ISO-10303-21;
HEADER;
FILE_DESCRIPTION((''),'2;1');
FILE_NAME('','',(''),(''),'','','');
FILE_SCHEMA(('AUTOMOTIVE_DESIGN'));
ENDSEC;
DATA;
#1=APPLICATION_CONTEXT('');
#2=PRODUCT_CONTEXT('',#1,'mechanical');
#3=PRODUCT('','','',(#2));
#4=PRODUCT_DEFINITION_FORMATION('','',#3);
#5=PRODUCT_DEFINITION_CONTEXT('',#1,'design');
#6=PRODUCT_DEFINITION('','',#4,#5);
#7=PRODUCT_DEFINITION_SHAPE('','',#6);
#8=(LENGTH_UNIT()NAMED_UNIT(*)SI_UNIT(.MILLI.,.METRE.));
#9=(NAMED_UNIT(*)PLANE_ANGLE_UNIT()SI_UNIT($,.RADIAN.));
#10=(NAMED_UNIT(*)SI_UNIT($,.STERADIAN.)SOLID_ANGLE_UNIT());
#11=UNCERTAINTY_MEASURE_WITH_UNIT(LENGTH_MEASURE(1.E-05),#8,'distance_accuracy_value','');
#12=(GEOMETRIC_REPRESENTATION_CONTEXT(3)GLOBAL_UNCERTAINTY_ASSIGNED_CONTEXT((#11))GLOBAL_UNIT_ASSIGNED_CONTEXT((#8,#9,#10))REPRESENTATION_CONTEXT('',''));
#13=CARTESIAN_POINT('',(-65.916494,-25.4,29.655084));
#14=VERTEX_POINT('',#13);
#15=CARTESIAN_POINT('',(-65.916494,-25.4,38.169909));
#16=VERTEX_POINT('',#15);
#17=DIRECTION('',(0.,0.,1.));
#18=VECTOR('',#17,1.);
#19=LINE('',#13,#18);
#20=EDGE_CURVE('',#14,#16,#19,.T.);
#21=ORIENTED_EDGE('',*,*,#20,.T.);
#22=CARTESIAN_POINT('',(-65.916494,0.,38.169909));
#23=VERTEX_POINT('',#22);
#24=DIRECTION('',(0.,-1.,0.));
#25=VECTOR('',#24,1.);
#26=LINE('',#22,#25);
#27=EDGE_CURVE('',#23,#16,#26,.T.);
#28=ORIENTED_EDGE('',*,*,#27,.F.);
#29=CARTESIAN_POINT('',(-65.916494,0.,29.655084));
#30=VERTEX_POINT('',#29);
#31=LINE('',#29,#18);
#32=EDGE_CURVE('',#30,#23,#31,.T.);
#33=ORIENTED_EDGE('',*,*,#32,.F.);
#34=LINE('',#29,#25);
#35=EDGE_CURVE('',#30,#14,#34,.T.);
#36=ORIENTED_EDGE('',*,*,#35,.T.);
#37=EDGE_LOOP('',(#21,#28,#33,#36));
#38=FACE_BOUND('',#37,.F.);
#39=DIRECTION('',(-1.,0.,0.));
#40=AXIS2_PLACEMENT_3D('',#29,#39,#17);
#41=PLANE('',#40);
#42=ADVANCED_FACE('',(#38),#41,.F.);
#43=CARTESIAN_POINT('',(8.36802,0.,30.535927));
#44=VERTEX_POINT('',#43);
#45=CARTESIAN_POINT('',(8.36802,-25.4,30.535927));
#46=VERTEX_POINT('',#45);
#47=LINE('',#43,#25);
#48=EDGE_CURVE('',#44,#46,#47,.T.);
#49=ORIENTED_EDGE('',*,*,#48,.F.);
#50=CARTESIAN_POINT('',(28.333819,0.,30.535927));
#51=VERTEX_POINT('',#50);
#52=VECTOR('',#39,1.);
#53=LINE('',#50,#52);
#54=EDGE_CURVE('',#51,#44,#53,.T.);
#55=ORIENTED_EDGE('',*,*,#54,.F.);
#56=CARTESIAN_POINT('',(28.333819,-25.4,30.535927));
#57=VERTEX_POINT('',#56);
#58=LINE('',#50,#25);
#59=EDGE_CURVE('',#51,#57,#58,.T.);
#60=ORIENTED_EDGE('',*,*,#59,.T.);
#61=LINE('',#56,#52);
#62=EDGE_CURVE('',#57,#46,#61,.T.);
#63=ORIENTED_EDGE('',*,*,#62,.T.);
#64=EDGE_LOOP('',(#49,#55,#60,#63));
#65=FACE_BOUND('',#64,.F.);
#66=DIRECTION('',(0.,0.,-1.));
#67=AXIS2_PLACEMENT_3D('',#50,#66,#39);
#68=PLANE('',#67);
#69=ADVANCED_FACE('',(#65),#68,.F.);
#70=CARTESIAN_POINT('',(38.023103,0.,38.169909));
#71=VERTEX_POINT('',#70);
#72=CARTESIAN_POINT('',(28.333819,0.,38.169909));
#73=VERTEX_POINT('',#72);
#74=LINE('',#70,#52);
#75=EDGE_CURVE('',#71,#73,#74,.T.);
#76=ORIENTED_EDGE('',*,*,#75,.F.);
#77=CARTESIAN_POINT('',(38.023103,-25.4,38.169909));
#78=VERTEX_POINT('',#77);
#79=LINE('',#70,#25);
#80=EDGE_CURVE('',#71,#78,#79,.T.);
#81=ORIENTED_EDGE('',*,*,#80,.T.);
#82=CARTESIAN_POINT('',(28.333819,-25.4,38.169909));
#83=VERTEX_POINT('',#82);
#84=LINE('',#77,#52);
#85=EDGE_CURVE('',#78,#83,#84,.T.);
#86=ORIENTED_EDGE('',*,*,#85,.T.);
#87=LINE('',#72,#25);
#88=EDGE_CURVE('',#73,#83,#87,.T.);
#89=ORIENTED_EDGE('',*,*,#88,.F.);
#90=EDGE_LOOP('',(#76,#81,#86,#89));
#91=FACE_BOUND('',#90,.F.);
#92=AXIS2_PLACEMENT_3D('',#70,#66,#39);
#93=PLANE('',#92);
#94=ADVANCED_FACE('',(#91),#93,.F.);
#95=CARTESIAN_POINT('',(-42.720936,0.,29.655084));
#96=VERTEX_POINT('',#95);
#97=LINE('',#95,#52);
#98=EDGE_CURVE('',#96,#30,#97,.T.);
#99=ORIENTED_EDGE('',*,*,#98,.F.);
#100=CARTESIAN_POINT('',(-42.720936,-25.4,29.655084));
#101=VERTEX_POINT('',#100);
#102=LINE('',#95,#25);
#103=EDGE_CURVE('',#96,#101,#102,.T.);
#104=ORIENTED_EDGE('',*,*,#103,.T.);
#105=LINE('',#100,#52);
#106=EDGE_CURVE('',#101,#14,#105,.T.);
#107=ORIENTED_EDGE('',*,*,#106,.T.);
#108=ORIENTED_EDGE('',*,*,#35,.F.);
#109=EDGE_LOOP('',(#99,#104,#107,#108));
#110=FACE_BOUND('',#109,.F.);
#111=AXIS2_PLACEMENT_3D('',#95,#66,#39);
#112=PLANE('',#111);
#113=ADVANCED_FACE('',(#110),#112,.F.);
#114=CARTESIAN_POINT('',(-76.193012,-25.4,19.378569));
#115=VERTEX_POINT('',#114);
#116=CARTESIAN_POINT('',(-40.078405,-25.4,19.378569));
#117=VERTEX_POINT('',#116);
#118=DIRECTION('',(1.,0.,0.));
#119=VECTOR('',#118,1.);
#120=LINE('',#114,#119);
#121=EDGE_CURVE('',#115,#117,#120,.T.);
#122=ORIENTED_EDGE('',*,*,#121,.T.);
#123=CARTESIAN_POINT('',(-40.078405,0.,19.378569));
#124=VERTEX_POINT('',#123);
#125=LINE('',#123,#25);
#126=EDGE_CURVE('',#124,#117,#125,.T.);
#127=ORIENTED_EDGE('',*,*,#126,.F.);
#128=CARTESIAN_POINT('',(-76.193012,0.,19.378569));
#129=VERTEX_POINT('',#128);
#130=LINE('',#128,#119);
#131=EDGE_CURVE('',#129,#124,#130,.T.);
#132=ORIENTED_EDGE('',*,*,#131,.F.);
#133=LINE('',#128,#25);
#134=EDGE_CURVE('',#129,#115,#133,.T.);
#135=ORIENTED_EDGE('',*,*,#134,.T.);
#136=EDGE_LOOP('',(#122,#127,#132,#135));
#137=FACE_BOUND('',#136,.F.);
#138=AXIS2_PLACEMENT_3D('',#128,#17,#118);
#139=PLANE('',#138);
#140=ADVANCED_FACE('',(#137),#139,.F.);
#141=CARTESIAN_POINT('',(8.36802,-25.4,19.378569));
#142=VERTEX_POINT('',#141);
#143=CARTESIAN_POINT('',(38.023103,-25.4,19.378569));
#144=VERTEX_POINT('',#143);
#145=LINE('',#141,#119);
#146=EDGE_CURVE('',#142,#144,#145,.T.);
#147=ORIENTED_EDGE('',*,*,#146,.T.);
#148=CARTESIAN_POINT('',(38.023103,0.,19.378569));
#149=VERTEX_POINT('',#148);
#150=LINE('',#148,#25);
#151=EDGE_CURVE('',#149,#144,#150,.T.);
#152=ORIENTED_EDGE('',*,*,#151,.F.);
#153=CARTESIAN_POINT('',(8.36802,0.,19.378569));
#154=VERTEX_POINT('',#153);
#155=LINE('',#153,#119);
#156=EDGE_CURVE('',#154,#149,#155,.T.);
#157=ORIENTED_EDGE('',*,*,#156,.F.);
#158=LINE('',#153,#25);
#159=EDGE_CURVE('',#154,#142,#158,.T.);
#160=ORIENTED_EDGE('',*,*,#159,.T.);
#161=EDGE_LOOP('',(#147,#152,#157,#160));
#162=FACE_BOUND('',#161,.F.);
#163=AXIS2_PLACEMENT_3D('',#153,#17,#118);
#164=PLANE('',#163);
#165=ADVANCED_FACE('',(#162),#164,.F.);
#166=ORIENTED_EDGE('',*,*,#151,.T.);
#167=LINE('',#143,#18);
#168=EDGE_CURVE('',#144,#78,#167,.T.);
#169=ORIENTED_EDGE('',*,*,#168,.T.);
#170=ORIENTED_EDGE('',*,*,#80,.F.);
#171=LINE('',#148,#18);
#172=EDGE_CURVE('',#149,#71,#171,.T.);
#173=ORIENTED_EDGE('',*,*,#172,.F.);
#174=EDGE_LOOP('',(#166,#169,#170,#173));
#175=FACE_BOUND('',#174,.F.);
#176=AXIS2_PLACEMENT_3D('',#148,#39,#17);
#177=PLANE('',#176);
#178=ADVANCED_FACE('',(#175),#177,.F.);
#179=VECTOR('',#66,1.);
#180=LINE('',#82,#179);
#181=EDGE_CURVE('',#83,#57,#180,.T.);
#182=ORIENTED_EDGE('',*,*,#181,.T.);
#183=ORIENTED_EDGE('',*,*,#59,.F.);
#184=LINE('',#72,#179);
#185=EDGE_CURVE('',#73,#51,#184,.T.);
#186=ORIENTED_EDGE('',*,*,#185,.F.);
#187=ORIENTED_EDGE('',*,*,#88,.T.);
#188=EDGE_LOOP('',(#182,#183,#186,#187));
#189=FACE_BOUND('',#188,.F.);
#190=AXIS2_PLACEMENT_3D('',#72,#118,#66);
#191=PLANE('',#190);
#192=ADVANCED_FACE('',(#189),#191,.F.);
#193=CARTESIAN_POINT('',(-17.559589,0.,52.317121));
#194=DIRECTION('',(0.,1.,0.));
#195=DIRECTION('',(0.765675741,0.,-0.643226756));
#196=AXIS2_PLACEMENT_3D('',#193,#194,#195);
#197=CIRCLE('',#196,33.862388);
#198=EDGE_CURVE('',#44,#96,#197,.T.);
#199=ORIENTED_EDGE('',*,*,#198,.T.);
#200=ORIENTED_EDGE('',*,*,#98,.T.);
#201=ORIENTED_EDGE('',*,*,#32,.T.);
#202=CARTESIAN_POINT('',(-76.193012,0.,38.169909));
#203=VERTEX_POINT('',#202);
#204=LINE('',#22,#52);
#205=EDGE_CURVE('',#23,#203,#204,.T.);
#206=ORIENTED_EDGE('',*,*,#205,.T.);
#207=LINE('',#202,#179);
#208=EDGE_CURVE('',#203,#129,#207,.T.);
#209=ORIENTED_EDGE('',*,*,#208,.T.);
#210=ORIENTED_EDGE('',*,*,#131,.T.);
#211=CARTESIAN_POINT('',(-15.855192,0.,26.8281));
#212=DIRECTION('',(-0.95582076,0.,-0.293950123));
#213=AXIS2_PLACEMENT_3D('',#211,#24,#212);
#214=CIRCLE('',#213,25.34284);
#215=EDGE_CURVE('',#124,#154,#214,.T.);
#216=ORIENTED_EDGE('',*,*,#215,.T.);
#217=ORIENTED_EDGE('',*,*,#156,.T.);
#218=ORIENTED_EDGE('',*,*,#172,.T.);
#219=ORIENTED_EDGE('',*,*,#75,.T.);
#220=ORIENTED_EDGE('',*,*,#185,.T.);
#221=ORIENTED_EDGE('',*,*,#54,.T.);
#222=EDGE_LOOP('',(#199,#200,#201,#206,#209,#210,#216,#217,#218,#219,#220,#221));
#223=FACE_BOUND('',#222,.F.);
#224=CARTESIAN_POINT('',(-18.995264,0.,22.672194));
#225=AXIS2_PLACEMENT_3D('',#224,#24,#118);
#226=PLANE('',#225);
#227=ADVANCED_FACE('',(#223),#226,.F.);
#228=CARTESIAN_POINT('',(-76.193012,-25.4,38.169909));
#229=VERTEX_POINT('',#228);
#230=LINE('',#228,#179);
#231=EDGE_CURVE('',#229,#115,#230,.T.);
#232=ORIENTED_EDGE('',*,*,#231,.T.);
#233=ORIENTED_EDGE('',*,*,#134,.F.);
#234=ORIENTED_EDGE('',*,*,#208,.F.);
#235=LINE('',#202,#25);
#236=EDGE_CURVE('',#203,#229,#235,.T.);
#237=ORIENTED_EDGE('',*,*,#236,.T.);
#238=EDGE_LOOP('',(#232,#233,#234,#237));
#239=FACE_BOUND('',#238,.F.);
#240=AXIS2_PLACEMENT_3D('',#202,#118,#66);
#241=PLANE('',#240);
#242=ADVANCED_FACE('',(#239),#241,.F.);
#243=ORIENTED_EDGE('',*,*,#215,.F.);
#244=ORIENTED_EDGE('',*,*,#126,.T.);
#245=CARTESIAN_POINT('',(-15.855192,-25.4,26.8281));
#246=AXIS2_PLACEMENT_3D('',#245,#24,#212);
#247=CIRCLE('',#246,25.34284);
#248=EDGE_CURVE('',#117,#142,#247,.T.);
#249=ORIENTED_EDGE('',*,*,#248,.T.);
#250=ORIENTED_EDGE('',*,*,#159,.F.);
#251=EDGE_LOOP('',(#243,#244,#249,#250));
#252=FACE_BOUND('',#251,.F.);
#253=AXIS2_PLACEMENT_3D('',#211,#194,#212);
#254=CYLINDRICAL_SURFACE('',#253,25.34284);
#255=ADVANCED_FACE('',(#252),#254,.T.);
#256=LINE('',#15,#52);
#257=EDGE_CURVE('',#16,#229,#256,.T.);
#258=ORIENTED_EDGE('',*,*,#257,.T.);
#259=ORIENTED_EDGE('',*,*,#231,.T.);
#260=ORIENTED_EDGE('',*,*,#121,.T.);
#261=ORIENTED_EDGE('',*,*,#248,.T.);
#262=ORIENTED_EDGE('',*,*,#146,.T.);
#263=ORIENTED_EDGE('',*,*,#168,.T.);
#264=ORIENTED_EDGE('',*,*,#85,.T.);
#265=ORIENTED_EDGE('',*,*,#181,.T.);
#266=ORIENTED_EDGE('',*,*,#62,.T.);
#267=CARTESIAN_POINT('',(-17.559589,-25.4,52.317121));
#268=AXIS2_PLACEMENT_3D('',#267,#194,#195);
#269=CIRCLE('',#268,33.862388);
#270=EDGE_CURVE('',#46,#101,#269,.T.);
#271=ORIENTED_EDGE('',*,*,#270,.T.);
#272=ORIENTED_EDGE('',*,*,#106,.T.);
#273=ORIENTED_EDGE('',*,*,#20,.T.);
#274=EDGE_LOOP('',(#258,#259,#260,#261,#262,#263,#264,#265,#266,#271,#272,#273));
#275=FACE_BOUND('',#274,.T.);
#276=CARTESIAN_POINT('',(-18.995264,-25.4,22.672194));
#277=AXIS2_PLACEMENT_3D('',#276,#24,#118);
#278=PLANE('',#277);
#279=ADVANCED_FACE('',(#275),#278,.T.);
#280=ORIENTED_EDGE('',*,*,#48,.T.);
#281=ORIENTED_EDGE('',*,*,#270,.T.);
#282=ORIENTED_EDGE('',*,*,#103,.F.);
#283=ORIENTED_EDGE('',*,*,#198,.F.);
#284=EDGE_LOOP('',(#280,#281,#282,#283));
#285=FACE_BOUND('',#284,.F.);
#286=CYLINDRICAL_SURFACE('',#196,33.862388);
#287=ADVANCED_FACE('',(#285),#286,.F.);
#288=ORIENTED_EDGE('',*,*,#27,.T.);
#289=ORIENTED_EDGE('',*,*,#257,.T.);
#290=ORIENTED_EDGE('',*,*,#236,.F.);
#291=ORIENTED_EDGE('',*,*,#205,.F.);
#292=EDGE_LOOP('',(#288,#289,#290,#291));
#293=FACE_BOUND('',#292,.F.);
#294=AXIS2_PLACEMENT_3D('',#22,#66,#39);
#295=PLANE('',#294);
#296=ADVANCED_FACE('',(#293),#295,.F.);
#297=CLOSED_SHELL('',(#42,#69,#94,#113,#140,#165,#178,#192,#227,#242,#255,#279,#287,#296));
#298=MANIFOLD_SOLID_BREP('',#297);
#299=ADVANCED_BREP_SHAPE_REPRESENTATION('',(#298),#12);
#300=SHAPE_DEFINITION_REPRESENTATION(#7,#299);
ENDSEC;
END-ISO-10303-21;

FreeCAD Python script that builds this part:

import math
import FreeCAD as App
import Part
import Sketcher

doc = App.newDocument("Part")
params = doc.addObject("Spreadsheet::Sheet", "Params")
for row, (alias, value) in enumerate([
    ("pad1_length", "1 in"),
], start=1):
    params.set(f"A{row}", alias)
    params.set(f"B{row}", "=" + value)
    params.setAlias(f"B{row}", alias)

body = doc.addObject("PartDesign::Body", "Body")

# Sketch on XZ plane
sketch1 = body.newObject("Sketcher::SketchObject", "Sketch")
sketch1.AttachmentSupport = (doc.getObject("XZ_Plane"), [""])
sketch1.MapMode = "FlatFace"
sketch1.addGeometry([
    Part.LineSegment(App.Vector(-66, 38, 0), App.Vector(-76, 38, 0)),  # 0
    Part.LineSegment(App.Vector(-76, 38, 0), App.Vector(-76, 19, 0)),  # 1
    Part.LineSegment(App.Vector(-76, 19, 0), App.Vector(-40, 19, 0)),  # 2
    Part.ArcOfCircle(Part.Circle(App.Vector(-16, 27, 0), App.Vector(0, 0, 1), 25), math.radians(-163), math.radians(-17)),  # 3
    Part.LineSegment(App.Vector(8, 19, 0), App.Vector(38, 19, 0)),  # 4
    Part.LineSegment(App.Vector(38, 19, 0), App.Vector(38, 38, 0)),  # 5
    Part.LineSegment(App.Vector(38, 38, 0), App.Vector(28, 38, 0)),  # 6
    Part.LineSegment(App.Vector(28, 38, 0), App.Vector(28, 31, 0)),  # 7
    Part.LineSegment(App.Vector(28, 31, 0), App.Vector(8, 31, 0)),  # 8
    Part.ArcOfCircle(Part.Circle(App.Vector(-18, 52, 0), App.Vector(0, 0, 1), 34), math.radians(-138), math.radians(-40)),  # 9
    Part.LineSegment(App.Vector(-43, 30, 0), App.Vector(-66, 30, 0)),  # 10
    Part.LineSegment(App.Vector(-66, 30, 0), App.Vector(-66, 38, 0)),  # 11
], False)
sketch1.addConstraint([
    Sketcher.Constraint("Coincident", 0, 2, 1, 1),
    Sketcher.Constraint("Coincident", 1, 2, 2, 1),
    Sketcher.Constraint("Coincident", 2, 2, 3, 1),
    Sketcher.Constraint("Coincident", 3, 2, 4, 1),
    Sketcher.Constraint("Coincident", 4, 2, 5, 1),
    Sketcher.Constraint("Coincident", 5, 2, 6, 1),
    Sketcher.Constraint("Coincident", 6, 2, 7, 1),
    Sketcher.Constraint("Coincident", 7, 2, 8, 1),
    Sketcher.Constraint("Coincident", 8, 2, 9, 2),
    Sketcher.Constraint("Coincident", 9, 1, 10, 1),
    Sketcher.Constraint("Coincident", 10, 2, 11, 1),
    Sketcher.Constraint("Coincident", 11, 2, 0, 1),
    Sketcher.Constraint("Horizontal", 0),
    Sketcher.Constraint("Vertical", 1),
    Sketcher.Constraint("Horizontal", 2),
    Sketcher.Constraint("Horizontal", 4),
    Sketcher.Constraint("Vertical", 5),
    Sketcher.Constraint("Horizontal", 6),
    Sketcher.Constraint("Vertical", 7),
    Sketcher.Constraint("Horizontal", 8),
    Sketcher.Constraint("Horizontal", 10),
    Sketcher.Constraint("Vertical", 11),
    Sketcher.Constraint("Horizontal", 2, 2, 3, 2),
    Sketcher.Constraint("Horizontal", 0, 2, 5, 2),
    Sketcher.Constraint("Vertical", 3, 2, 8, 2),
    Sketcher.Constraint("Radius", 3, 25.34284),
    Sketcher.Constraint("DistanceX", 8, 2, 8, 1, 19.965799),
    Sketcher.Constraint("Radius", 9, 33.862388),
    Sketcher.Constraint("DistanceY", 1, 2, 1, 1, 18.79134),
    Sketcher.Constraint("DistanceY", 7, 2, 7, 1, 7.633982),
    Sketcher.Constraint("DistanceY", -1, 1, 3, 3, 26.8281),
    Sketcher.Constraint("DistanceX", 10, 2, 3, 3, 50.061301),
    Sketcher.Constraint("DistanceX", 0, 2, 0, 1, 10.276518),
    Sketcher.Constraint("DistanceX", 2, 1, 2, 2, 36.114607),
    Sketcher.Constraint("DistanceX", 4, 1, 4, 2, 29.655083),
    Sketcher.Constraint("DistanceX", 10, 2, 10, 1, 23.195558),
    Sketcher.Constraint("DistanceY", 11, 1, 11, 2, 8.514825),
    Sketcher.Constraint("DistanceX", 9, 3, -1, 1, 17.559589),
])
pad1 = body.newObject("PartDesign::Pad", "Pad")
pad1.Profile = sketch1
pad1.setExpression("Length", "Params.pad1_length")

doc.recompute()
